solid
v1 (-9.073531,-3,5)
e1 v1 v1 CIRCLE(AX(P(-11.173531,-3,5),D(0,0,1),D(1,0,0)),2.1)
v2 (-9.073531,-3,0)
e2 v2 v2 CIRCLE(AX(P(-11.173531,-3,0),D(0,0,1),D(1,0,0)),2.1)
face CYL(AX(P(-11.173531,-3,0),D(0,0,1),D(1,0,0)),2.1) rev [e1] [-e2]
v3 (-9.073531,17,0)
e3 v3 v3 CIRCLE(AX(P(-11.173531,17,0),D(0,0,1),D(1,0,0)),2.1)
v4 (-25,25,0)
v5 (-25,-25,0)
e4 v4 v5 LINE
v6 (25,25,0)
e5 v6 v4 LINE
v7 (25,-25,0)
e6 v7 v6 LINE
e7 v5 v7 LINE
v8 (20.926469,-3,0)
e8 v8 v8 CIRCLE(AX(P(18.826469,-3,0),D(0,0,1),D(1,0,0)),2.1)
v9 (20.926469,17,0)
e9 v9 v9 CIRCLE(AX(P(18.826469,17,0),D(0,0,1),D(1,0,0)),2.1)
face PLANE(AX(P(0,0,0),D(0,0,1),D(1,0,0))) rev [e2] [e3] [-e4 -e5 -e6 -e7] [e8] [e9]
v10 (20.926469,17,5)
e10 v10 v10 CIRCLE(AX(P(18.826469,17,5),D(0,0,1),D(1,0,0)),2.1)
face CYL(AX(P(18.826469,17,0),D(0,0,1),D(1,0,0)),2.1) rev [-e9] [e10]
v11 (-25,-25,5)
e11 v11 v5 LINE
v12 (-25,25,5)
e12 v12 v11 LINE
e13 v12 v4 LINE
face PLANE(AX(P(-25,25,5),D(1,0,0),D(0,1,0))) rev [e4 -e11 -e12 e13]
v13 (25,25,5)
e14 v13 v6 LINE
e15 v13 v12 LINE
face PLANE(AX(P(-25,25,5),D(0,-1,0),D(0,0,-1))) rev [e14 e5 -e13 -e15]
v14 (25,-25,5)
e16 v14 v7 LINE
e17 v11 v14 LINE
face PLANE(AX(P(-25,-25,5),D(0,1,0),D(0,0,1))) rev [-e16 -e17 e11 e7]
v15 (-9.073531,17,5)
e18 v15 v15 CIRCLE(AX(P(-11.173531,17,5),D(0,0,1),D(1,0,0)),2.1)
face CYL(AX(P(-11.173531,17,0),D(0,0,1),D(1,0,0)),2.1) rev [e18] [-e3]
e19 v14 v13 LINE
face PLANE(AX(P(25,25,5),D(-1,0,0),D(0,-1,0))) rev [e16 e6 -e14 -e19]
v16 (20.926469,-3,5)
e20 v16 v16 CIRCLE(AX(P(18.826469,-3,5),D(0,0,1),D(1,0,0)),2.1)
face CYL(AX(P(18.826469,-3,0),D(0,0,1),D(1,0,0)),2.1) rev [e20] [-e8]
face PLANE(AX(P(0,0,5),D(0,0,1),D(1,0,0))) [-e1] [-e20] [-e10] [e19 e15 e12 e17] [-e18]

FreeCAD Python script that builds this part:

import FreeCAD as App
import Part
import Sketcher


def add_polygon(sketch, points):
    """Adds a closed chain of lines whose ends are joined by coincident constraints."""
    first, n = sketch.GeometryCount, len(points)
    for a, b in zip(points, points[1:] + points[:1]):
        sketch.addGeometry(Part.LineSegment(App.Vector(*a, 0), App.Vector(*b, 0)), False)
    for i in range(n):
        sketch.addConstraint(Sketcher.Constraint("Coincident", first + i, 2, first + (i + 1) % n, 1))

doc = App.newDocument("Part")
body = doc.addObject("PartDesign::Body", "Body")

# Sketch on XY plane
sketch1 = doc.addObject("Sketcher::SketchObject", "Sketch")
body.addObject(sketch1)
sketch1.AttachmentSupport = (doc.XY_Plane, [""])
sketch1.MapMode = "FlatFace"
add_polygon(sketch1, [(-25, 25), (-25, -25), (25, -25), (25, 25)])  # lines 0-3
sketch1.addConstraint(Sketcher.Constraint("Vertical", 0))
sketch1.addConstraint(Sketcher.Constraint("Horizontal", 1))
sketch1.addConstraint(Sketcher.Constraint("Vertical", 2))
sketch1.addConstraint(Sketcher.Constraint("Horizontal", 3))
sketch1.addConstraint(Sketcher.Constraint("Symmetric", 0, 2, 2, 2, -1, 1))
sketch1.addConstraint(Sketcher.Constraint("Equal", 3, 0))
sketch1.addConstraint(Sketcher.Constraint("DistanceX", 1, 1, 1, 2, 50.0))
pad1 = doc.addObject("PartDesign::Pad", "Pad")
body.addObject(pad1)
pad1.Profile = sketch1
pad1.Length = 5

# Sketch on XY plane
sketch2 = doc.addObject("Sketcher::SketchObject", "Sketch001")
body.addObject(sketch2)
sketch2.AttachmentSupport = (doc.XY_Plane, [""])
sketch2.MapMode = "FlatFace"
sketch2.AttachmentOffset = App.Placement(App.Vector(0, 0, 5), App.Rotation())
sketch2.addGeometry(Part.Circle(App.Vector(-11.2, -3, 0), App.Vector(0, 0, 1), 2.1), False)
sketch2.addGeometry(Part.Circle(App.Vector(18.8, -3, 0), App.Vector(0, 0, 1), 2.1), False)
sketch2.addGeometry(Part.Circle(App.Vector(-11.2, 17, 0), App.Vector(0, 0, 1), 2.1), False)
sketch2.addGeometry(Part.Circle(App.Vector(18.8, 17, 0), App.Vector(0, 0, 1), 2.1), False)
sketch2.addConstraint(Sketcher.Constraint("Equal", 0, 1))
sketch2.addConstraint(Sketcher.Constraint("Equal", 1, 2))
sketch2.addConstraint(Sketcher.Constraint("Equal", 2, 3))
sketch2.addConstraint(Sketcher.Constraint("Horizontal", 0, 3, 1, 3))
sketch2.addConstraint(Sketcher.Constraint("Horizontal", 2, 3, 3, 3))
sketch2.addConstraint(Sketcher.Constraint("Vertical", 0, 3, 2, 3))
sketch2.addConstraint(Sketcher.Constraint("Vertical", 1, 3, 3, 3))
sketch2.addConstraint(Sketcher.Constraint("Diameter", 0, 4.2))
sketch2.addConstraint(Sketcher.Constraint("DistanceY", 0, 3, -1, 1, 3.0))
sketch2.addConstraint(Sketcher.Constraint("DistanceY", -1, 1, 2, 3, 17.0))
sketch2.addConstraint(Sketcher.Constraint("DistanceX", 0, 3, 1, 3, 30.0))
sketch2.addConstraint(Sketcher.Constraint("DistanceX", 0, 3, -1, 1, 11.173531))
pocket1 = doc.addObject("PartDesign::Pocket", "Pocket")
body.addObject(pocket1)
pocket1.Profile = sketch2
pocket1.Length = 5

doc.recompute()
